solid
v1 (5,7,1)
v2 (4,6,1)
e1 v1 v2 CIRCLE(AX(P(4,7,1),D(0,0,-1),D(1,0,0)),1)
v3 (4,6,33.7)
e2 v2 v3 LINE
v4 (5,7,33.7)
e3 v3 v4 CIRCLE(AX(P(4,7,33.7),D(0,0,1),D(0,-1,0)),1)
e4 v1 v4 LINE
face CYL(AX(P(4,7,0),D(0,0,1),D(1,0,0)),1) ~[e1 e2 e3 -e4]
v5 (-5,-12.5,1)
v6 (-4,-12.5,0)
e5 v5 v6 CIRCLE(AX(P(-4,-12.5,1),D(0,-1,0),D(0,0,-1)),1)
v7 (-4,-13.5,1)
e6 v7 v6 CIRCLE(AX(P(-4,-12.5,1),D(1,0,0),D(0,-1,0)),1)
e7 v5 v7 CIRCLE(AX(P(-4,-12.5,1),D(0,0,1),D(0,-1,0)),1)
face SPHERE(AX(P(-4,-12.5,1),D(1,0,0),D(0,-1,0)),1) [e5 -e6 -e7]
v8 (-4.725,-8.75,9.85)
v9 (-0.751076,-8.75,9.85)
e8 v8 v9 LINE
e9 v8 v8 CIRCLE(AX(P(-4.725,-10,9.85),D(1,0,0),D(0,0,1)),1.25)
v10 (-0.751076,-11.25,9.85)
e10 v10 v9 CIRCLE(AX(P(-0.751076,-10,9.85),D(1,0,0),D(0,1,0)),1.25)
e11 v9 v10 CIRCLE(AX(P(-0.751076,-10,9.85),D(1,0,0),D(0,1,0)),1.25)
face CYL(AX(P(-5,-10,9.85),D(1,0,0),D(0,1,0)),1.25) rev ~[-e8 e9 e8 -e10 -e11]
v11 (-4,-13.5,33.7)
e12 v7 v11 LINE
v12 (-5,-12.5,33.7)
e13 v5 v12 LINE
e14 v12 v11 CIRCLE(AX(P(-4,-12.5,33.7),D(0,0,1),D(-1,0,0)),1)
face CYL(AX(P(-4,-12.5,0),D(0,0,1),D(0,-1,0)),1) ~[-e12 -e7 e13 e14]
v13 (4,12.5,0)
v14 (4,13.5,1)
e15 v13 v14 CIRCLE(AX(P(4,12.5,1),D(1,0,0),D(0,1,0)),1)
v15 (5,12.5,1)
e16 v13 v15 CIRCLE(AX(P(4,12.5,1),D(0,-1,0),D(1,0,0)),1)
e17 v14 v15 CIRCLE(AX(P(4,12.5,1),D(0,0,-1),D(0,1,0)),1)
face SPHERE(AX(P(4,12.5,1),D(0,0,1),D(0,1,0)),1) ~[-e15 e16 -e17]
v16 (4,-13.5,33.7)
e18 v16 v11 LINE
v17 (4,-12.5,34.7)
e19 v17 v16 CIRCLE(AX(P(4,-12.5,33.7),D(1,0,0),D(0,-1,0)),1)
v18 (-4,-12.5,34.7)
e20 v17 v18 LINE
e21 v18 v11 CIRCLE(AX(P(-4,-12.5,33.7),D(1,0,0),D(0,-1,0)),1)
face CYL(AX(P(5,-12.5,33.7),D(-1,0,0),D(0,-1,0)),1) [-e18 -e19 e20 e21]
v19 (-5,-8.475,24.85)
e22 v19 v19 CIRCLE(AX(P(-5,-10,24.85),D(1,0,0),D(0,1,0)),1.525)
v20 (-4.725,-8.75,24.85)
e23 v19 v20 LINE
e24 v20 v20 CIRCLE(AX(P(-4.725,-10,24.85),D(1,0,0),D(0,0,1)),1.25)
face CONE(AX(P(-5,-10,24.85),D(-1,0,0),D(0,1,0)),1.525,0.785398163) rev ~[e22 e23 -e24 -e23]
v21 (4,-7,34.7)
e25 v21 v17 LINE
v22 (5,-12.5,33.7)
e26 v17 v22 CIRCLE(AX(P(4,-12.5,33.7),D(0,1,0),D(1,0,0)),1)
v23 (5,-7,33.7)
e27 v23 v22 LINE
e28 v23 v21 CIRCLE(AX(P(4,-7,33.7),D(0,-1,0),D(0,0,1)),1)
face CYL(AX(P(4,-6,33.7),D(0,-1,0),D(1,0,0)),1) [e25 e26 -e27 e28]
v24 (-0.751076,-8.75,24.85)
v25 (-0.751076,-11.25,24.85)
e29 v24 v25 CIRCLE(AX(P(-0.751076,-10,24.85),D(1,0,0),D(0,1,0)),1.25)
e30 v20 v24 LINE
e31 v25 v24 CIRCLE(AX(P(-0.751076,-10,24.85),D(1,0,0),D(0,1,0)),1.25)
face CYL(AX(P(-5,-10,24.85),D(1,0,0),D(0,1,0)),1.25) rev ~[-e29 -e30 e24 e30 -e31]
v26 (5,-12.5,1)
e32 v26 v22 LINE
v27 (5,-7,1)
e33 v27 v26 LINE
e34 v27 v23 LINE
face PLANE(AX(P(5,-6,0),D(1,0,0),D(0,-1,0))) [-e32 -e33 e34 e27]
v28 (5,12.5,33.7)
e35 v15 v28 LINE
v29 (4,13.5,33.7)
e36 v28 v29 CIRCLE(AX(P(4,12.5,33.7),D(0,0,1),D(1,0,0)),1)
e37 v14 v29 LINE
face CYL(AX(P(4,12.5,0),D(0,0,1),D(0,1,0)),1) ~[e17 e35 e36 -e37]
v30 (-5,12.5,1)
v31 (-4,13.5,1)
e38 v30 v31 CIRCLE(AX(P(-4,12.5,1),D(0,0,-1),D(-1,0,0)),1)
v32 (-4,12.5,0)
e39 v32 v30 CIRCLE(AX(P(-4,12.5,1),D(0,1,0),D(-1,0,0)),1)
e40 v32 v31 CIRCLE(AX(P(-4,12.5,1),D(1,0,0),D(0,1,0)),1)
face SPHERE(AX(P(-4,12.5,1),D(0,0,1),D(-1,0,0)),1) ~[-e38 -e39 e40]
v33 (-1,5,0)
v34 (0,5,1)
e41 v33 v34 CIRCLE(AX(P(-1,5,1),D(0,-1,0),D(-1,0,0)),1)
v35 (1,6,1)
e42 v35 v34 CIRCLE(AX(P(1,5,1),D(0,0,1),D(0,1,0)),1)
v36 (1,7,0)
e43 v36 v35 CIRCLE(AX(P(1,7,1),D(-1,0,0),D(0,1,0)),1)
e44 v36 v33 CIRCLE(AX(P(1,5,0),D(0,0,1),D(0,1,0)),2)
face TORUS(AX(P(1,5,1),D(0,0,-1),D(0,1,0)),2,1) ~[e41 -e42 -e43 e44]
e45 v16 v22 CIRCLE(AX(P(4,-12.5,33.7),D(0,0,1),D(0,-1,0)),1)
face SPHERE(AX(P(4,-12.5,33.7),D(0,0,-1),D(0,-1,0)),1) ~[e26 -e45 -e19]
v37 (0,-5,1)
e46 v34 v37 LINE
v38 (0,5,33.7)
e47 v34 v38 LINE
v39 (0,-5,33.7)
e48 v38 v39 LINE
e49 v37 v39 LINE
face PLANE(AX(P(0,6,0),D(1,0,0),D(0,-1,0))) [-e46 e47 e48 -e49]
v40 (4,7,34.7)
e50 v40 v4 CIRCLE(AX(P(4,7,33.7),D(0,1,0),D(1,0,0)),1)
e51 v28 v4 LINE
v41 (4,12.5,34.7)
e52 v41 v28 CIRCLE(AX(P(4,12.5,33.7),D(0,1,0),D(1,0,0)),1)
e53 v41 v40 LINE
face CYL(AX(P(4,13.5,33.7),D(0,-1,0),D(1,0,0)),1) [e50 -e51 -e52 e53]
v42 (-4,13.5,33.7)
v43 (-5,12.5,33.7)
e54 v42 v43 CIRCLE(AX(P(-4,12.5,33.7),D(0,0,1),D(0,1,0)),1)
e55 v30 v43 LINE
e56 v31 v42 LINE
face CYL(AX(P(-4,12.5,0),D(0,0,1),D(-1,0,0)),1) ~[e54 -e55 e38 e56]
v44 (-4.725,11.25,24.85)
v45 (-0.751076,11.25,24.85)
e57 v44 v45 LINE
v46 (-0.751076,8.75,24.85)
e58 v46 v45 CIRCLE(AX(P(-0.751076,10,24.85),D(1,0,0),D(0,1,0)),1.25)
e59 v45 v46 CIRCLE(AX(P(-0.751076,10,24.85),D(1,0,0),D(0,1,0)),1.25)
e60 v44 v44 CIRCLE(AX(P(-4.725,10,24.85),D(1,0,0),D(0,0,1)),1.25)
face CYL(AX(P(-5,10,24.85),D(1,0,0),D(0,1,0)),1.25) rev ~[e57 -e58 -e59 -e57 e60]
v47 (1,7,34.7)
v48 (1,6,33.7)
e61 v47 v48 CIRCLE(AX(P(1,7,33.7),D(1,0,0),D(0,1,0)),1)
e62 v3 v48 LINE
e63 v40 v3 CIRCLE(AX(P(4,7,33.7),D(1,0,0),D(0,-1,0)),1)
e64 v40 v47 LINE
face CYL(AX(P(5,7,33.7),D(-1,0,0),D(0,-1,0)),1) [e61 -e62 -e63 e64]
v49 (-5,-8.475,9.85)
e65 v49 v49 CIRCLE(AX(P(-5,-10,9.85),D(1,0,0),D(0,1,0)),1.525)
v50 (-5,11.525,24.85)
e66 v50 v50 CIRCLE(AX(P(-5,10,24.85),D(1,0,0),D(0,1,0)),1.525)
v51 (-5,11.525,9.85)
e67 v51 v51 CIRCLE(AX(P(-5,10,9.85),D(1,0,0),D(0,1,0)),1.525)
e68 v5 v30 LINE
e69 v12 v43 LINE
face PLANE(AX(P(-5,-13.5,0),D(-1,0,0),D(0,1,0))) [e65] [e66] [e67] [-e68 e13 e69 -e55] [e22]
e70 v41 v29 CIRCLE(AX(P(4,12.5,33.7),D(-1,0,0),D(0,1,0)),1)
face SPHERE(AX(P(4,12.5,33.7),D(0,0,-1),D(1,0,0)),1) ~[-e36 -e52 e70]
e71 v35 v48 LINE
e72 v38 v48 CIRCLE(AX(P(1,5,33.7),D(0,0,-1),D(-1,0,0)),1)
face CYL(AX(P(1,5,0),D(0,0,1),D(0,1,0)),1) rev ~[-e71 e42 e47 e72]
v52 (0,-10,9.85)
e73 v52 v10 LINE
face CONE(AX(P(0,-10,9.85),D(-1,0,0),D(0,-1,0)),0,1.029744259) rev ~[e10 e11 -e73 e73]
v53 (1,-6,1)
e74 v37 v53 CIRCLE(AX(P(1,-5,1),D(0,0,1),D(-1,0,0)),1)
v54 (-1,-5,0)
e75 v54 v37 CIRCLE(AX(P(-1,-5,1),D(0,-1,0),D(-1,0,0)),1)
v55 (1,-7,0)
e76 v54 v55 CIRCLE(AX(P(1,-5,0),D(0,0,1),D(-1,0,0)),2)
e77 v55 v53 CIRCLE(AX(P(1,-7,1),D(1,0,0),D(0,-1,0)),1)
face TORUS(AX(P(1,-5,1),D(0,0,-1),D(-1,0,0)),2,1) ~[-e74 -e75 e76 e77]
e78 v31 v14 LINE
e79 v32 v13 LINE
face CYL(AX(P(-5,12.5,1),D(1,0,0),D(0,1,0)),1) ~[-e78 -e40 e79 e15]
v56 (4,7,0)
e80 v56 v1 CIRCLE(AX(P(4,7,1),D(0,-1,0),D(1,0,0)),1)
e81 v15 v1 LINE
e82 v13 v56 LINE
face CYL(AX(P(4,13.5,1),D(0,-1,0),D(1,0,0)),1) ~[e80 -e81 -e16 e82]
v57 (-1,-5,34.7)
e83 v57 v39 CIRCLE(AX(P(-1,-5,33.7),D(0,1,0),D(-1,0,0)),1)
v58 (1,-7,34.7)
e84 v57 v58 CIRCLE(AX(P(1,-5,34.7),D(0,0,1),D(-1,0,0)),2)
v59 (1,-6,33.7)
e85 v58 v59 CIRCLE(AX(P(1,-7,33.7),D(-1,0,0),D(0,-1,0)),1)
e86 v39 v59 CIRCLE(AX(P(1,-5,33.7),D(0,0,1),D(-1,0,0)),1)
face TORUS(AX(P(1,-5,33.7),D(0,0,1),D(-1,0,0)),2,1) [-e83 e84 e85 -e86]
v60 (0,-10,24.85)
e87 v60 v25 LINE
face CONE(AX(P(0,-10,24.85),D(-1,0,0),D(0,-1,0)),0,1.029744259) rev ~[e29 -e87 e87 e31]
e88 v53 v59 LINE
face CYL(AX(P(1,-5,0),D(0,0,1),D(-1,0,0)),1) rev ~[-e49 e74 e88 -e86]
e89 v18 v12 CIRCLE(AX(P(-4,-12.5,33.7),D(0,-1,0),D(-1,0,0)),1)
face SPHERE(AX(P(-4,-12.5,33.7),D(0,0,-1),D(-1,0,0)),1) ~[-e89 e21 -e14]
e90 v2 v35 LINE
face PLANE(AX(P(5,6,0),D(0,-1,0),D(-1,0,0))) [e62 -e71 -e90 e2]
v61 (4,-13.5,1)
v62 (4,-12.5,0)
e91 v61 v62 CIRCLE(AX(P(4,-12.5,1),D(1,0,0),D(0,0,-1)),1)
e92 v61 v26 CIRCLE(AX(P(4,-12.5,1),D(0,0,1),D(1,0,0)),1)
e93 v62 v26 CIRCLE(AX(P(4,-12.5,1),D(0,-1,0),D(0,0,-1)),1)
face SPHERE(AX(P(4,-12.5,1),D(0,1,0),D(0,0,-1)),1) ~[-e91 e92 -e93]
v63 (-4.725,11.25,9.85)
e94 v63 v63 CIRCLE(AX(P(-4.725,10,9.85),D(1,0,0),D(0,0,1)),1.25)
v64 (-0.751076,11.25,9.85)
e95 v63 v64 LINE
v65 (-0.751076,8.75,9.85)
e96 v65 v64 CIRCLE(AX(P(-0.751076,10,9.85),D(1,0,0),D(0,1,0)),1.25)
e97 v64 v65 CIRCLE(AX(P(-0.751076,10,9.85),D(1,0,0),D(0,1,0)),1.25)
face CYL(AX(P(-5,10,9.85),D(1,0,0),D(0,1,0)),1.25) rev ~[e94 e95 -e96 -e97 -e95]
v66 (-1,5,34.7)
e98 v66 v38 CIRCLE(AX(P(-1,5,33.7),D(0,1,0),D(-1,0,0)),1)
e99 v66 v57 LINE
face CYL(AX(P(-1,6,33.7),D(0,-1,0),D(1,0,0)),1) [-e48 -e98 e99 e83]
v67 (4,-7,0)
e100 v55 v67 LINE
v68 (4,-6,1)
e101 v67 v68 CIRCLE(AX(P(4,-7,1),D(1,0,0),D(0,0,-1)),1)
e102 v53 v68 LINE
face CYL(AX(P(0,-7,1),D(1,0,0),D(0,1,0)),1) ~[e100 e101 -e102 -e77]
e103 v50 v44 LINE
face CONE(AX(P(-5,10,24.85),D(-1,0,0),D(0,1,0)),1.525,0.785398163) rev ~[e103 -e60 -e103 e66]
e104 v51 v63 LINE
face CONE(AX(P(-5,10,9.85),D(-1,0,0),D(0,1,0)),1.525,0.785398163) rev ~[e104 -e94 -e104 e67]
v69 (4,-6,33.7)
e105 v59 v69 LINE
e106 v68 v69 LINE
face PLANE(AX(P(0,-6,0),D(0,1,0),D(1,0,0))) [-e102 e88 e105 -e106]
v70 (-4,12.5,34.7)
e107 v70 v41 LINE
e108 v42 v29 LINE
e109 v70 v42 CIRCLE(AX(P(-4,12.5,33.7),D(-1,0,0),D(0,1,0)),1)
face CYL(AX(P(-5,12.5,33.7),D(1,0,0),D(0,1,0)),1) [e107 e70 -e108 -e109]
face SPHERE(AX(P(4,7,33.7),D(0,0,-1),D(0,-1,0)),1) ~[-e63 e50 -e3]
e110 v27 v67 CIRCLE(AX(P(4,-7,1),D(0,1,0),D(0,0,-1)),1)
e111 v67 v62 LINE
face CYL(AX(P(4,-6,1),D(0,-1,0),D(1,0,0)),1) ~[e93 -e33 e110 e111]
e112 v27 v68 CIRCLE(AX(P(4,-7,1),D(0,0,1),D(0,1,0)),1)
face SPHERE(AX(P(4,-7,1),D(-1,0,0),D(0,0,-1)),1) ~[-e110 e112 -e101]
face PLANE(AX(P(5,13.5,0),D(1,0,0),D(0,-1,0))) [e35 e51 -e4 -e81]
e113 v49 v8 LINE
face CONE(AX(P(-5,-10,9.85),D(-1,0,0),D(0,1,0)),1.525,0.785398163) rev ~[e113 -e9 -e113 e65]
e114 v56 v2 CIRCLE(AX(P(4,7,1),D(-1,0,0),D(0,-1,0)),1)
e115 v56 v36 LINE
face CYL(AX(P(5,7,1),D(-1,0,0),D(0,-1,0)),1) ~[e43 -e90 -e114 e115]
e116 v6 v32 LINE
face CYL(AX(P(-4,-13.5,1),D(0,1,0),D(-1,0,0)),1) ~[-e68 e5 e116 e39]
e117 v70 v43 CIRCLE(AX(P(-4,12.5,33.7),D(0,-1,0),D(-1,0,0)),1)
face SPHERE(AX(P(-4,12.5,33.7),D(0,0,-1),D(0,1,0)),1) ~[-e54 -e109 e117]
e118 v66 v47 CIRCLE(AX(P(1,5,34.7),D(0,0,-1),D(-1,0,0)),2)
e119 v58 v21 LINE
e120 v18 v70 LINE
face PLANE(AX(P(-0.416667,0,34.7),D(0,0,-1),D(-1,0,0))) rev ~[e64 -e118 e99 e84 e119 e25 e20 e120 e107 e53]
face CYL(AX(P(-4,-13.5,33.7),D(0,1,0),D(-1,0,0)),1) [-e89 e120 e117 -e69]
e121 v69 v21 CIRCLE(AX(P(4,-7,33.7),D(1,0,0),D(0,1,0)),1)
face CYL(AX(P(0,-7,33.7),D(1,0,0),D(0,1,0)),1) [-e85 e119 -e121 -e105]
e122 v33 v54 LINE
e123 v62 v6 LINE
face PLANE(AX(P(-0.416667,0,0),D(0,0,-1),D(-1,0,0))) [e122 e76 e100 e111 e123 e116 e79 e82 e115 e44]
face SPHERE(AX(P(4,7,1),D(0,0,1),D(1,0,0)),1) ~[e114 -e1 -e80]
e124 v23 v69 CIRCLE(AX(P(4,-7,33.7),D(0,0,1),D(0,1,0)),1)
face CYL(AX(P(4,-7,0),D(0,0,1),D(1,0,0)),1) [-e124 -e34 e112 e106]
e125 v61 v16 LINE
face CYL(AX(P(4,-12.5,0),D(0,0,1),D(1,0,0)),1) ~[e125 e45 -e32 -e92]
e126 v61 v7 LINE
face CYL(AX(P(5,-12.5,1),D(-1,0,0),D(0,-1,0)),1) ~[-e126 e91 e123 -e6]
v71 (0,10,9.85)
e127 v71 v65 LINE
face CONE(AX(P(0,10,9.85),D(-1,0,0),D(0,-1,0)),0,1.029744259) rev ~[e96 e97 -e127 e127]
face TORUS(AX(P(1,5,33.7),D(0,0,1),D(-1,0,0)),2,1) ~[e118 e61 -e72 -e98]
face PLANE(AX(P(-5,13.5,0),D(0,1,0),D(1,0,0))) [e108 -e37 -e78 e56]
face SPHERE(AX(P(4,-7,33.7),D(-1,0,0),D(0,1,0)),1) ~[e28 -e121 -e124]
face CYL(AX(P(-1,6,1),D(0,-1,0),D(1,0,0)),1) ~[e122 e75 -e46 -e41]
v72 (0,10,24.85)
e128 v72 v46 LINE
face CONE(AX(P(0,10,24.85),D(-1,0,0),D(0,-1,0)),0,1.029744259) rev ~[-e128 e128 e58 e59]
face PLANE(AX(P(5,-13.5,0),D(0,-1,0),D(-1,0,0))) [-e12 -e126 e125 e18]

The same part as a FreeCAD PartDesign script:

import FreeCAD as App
import Part
import Sketcher
Q = App.Units.Quantity


def add_polygon(sketch, points):
    """Adds a closed chain of lines whose ends are joined by coincident constraints."""
    first, n = sketch.GeometryCount, len(points)
    for a, b in zip(points, points[1:] + points[:1]):
        sketch.addGeometry(Part.LineSegment(App.Vector(*a, 0), App.Vector(*b, 0)), False)
    for i in range(n):
        sketch.addConstraint(Sketcher.Constraint("Coincident", first + i, 2, first + (i + 1) % n, 1))

doc = App.newDocument("Part")
params = doc.addObject("Spreadsheet::Sheet", "Params")
for row, (alias, value) in enumerate([
    ("sketch1_width", "5 mm"),
    ("sketch1_height", "12 mm"),
    ("sketch1_height2", "27 mm"),
    ("pad1_length", "34.7 mm"),
    ("fillet_radius", "1 mm"),
    ("sketch2_diameter", "2.5 mm"),
    ("hole_diameter", "2.5 mm"),
    ("hole_depth", "4.248924 mm"),
    ("hole_csink_diameter", "3.05 mm"),
], start=1):
    params.set(f"A{row}", alias)
    params.set(f"B{row}", "=" + value)
    params.setAlias(f"B{row}", alias)

body = doc.addObject("PartDesign::Body", "Body")

sketch1 = doc.addObject("Sketcher::SketchObject", "Sketch")
body.addObject(sketch1)
sketch1.AttachmentSupport = (doc.XY_Plane, [""])
sketch1.MapMode = "FlatFace"
add_polygon(sketch1, [(5, -14), (5, -6), (0, -6), (0, 6), (5, 6), (5, 14), (-5, 14), (-5, -14)])
sketch1.addConstraint([
    Sketcher.Constraint("Vertical", 0),
    Sketcher.Constraint("Horizontal", 1),
    Sketcher.Constraint("Vertical", 2),
    Sketcher.Constraint("Horizontal", 3),
    Sketcher.Constraint("Vertical", 4),
    Sketcher.Constraint("Horizontal", 5),
    Sketcher.Constraint("Vertical", 6),
    Sketcher.Constraint("Horizontal", 7),
    Sketcher.Constraint("Symmetric", 1, 2, 2, 2, -1, 1),
    Sketcher.Constraint("Symmetric", 4, 2, 6, 2, -1, 1),
    Sketcher.Constraint("Vertical", 0, 2, 3, 2),
    Sketcher.Constraint("DistanceX", 1, 2, 1, 1, Q("5 mm")),
    Sketcher.Constraint("DistanceY", 2, 1, 2, 2, Q("12 mm")),
    Sketcher.Constraint("DistanceY", 6, 2, 6, 1, Q("27 mm")),
])
sketch1.setExpression("Constraints[19]", "Params.sketch1_width")
sketch1.setExpression("Constraints[20]", "Params.sketch1_height")
sketch1.setExpression("Constraints[21]", "Params.sketch1_height2")
pad1 = doc.addObject("PartDesign::Pad", "Pad")
body.addObject(pad1)
pad1.Profile = sketch1
pad1.setExpression("Length", "Params.pad1_length")
doc.recompute()

fillet = doc.addObject("PartDesign::Fillet", "Fillet")
body.addObject(fillet)
fillet.Base = (pad1, ["Edge1"])
fillet.UseAllEdges = True
fillet.setExpression("Radius", "Params.fillet_radius")

sketch2 = doc.addObject("Sketcher::SketchObject", "Sketch001")
body.addObject(sketch2)
sketch2.AttachmentSupport = (doc.YZ_Plane, [""])
sketch2.MapMode = "FlatFace"
sketch2.AttachmentOffset = App.Placement(App.Vector(0, 0, -5), App.Rotation())
sketch2.addGeometry([
    Part.Circle(App.Vector(10, 9.8, 0), App.Vector(0, 0, 1), 1.2),
    Part.Circle(App.Vector(10, 24.9, 0), App.Vector(0, 0, 1), 1.2),
    Part.Circle(App.Vector(-10, 24.9, 0), App.Vector(0, 0, 1), 1.2),
    Part.Circle(App.Vector(-10, 9.8, 0), App.Vector(0, 0, 1), 1.2),
], False)
sketch2.addConstraint([
    Sketcher.Constraint("Equal", 0, 1),
    Sketcher.Constraint("Equal", 1, 2),
    Sketcher.Constraint("Equal", 2, 3),
    Sketcher.Constraint("Symmetric", 1, 3, 2, 3, -2),
    Sketcher.Constraint("Symmetric", 0, 3, 3, 3, -2),
    Sketcher.Constraint("Vertical", 0, 3, 1, 3),
    Sketcher.Constraint("Diameter", 0, Q("2.5 mm")),
    Sketcher.Constraint("DistanceX", -1, 1, 0, 3, Q("10 mm")),
    Sketcher.Constraint("DistanceY", 0, 3, 1, 3, Q("15 mm")),
    Sketcher.Constraint("DistanceY", -1, 1, 0, 3, Q("9.85 mm")),
])
sketch2.setExpression("Constraints[6]", "Params.sketch2_diameter")
doc.recompute()
hole = doc.addObject("PartDesign::Hole", "Hole")
body.addObject(hole)
hole.Profile = sketch2
hole.ThreadType = "None"
hole.setExpression("Diameter", "Params.hole_diameter")
hole.DepthType = "Dimension"
hole.setExpression("Depth", "Params.hole_depth")
hole.DrillPoint = "Angled"
hole.DrillPointAngle = 118
hole.HoleCutType = "Countersink"
hole.setExpression("HoleCutDiameter", "Params.hole_csink_diameter")
hole.HoleCutCountersinkAngle = 90
hole.Reversed = True

doc.recompute()
